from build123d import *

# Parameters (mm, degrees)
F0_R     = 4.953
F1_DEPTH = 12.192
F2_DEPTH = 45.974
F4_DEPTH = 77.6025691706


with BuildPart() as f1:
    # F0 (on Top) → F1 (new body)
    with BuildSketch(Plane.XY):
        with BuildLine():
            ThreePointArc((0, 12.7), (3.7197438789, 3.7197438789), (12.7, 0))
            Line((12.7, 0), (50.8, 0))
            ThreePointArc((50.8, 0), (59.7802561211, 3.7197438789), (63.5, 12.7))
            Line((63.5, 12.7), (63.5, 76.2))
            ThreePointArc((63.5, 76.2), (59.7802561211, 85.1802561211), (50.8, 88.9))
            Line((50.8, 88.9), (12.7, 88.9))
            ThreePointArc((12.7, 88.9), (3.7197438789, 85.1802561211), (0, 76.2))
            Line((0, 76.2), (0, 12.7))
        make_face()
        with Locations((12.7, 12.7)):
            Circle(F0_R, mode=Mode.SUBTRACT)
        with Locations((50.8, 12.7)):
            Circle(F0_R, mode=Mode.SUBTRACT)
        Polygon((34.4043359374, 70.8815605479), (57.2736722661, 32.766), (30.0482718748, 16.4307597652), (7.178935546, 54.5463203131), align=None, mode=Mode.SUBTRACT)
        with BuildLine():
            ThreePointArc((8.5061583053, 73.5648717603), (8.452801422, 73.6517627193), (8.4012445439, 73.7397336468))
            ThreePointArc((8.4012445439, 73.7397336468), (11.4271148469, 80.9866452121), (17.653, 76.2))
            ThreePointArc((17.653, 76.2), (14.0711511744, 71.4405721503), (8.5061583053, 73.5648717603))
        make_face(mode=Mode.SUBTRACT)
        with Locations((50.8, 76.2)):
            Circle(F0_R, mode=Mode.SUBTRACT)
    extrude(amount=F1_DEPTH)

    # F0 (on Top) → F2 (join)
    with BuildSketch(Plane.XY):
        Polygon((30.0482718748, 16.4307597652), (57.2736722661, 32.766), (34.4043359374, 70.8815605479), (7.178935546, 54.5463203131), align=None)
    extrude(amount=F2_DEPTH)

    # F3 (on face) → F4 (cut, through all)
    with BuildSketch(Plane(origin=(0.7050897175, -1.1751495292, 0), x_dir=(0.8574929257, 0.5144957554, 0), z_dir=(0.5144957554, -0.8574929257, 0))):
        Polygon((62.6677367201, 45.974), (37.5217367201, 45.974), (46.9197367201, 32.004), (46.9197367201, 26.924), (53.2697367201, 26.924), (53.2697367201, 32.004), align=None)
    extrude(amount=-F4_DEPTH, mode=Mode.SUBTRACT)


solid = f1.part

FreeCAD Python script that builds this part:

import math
import FreeCAD as App
import Part
import Sketcher

V = App.Vector
Q = App.Units.Quantity


def add_polygon(sketch, points):
    """Adds a closed chain of lines whose ends are joined by coincident constraints."""
    first, n = sketch.GeometryCount, len(points)
    for a, b in zip(points, points[1:] + points[:1]):
        sketch.addGeometry(Part.LineSegment(App.Vector(*a, 0), App.Vector(*b, 0)), False)
    for i in range(n):
        sketch.addConstraint(Sketcher.Constraint("Coincident", first + i, 2, first + (i + 1) % n, 1))

doc = App.newDocument("Part")
body = doc.addObject("PartDesign::Body", "Body")

# Sketch on XY plane
sketch1 = body.newObject("Sketcher::SketchObject", "Sketch")
sketch1.AttachmentSupport = (doc.getObject("XY_Plane"), [""])
sketch1.MapMode = "FlatFace"
sketch1.addGeometry(Part.ArcOfCircle(Part.Circle(V(12.7, 12.7, 0), V(0, 0, 1), 12.7), math.radians(180), math.radians(270)), False)  # 0
sketch1.addGeometry(Part.LineSegment(V(12.7, 0, 0), V(50.8, 0, 0)), False)  # 1
sketch1.addGeometry(Part.ArcOfCircle(Part.Circle(V(50.8, 12.7, 0), V(0, 0, 1), 12.7), math.radians(-90), math.radians(0)), False)  # 2
sketch1.addGeometry(Part.LineSegment(V(63.5, 12.7, 0), V(63.5, 76.2, 0)), False)  # 3
sketch1.addGeometry(Part.ArcOfCircle(Part.Circle(V(50.8, 76.2, 0), V(0, 0, 1), 12.7), math.radians(0), math.radians(90)), False)  # 4
sketch1.addGeometry(Part.LineSegment(V(50.8, 88.9, 0), V(12.7, 88.9, 0)), False)  # 5
sketch1.addGeometry(Part.ArcOfCircle(Part.Circle(V(12.7, 76.2, 0), V(0, 0, 1), 12.7), math.radians(90), math.radians(180)), False)  # 6
sketch1.addGeometry(Part.LineSegment(V(0, 76.2, 0), V(0, 12.7, 0)), False)  # 7
sketch1.addGeometry(Part.Circle(V(12.7, 12.7, 0), V(0, 0, 1), 4.95), False)  # 8
sketch1.addGeometry(Part.Circle(V(50.8, 12.7, 0), V(0, 0, 1), 4.95), False)  # 9
add_polygon(sketch1, [(7.18, 54.55), (34.4, 70.88), (57.27, 32.77), (30.05, 16.43)])  # lines 10-13
sketch1.addGeometry(Part.ArcOfCircle(Part.Circle(V(12.7, 76.2, 0), V(0, 0, 1), 4.95), math.radians(-148), math.radians(0)), False)  # 14
sketch1.addGeometry(Part.ArcOfCircle(Part.Circle(V(12.7, 76.2, 0), V(0, 0, 1), 4.95), math.radians(-150.22), math.radians(-147.86)), False)  # 15
sketch1.addGeometry(Part.ArcOfCircle(Part.Circle(V(12.7, 76.2, 0), V(0, 0, 1), 4.95), math.radians(0), math.radians(210)), False)  # 16
sketch1.addGeometry(Part.Circle(V(50.8, 76.2, 0), V(0, 0, 1), 4.95), False)  # 17
sketch1.addConstraint(Sketcher.Constraint("Tangent", 0, 2, 1, 1))
sketch1.addConstraint(Sketcher.Constraint("Tangent", 1, 2, 2, 1))
sketch1.addConstraint(Sketcher.Constraint("Tangent", 2, 2, 3, 1))
sketch1.addConstraint(Sketcher.Constraint("Tangent", 3, 2, 4, 1))
sketch1.addConstraint(Sketcher.Constraint("Tangent", 4, 2, 5, 1))
sketch1.addConstraint(Sketcher.Constraint("Tangent", 5, 2, 6, 1))
sketch1.addConstraint(Sketcher.Constraint("Tangent", 6, 2, 7, 1))
sketch1.addConstraint(Sketcher.Constraint("Tangent", 7, 2, 0, 1))
sketch1.addConstraint(Sketcher.Constraint("Tangent", 14, 1, 15, 2))
sketch1.addConstraint(Sketcher.Constraint("Tangent", 15, 1, 16, 2))
sketch1.addConstraint(Sketcher.Constraint("Tangent", 16, 1, 14, 2))
sketch1.addConstraint(Sketcher.Constraint("Horizontal", 1))
sketch1.addConstraint(Sketcher.Constraint("Vertical", 3))
sketch1.addConstraint(Sketcher.Constraint("Horizontal", 5))
sketch1.addConstraint(Sketcher.Constraint("Vertical", 7))
sketch1.addConstraint(Sketcher.Constraint("Coincident", 8, 3, 0, 3))
sketch1.addConstraint(Sketcher.Constraint("Coincident", 9, 3, 2, 3))
sketch1.addConstraint(Sketcher.Constraint("Coincident", 14, 3, 6, 3))
sketch1.addConstraint(Sketcher.Constraint("Coincident", 17, 3, 4, 3))
sketch1.addConstraint(Sketcher.Constraint("Equal", 0, 2))
sketch1.addConstraint(Sketcher.Constraint("Equal", 2, 4))
sketch1.addConstraint(Sketcher.Constraint("Equal", 4, 6))
sketch1.addConstraint(Sketcher.Constraint("Equal", 8, 9))
sketch1.addConstraint(Sketcher.Constraint("Equal", 9, 14))
sketch1.addConstraint(Sketcher.Constraint("Equal", 16, 17))
sketch1.addConstraint(Sketcher.Constraint("PointOnObject", 0, 2, -1))
sketch1.addConstraint(Sketcher.Constraint("PointOnObject", 6, 2, -2))
sketch1.addConstraint(Sketcher.Constraint("Perpendicular", 10, 11))
sketch1.addConstraint(Sketcher.Constraint("Perpendicular", 11, 12))
sketch1.addConstraint(Sketcher.Constraint("Perpendicular", 12, 13))
sketch1.addConstraint(Sketcher.Constraint("Horizontal", 6, 2, 16, 1))
sketch1.addConstraint(Sketcher.Constraint("Radius", 0, Q("0.5 in")))
sketch1.addConstraint(Sketcher.Constraint("Diameter", 8, Q("0.39 in")))
sketch1.addConstraint(Sketcher.Constraint("DistanceX", 1, 1, 1, 2, Q("1.5 in")))
sketch1.addConstraint(Sketcher.Constraint("DistanceY", 3, 1, 3, 2, Q("2.5 in")))
sketch1.addConstraint(Sketcher.Constraint("Distance", 10, Q("1.25 in")))
sketch1.addConstraint(Sketcher.Constraint("Distance", 11, Q("1.75 in")))
sketch1.addConstraint(Sketcher.Constraint("DistanceY", -1, 1, 11, 2, Q("1.29 in")))
sketch1.addConstraint(Sketcher.Constraint("DistanceY", -1, 1, 10, 2, Q("70.881561 mm")))
sketch1.addConstraint(Sketcher.Constraint("DistanceX", -1, 1, 12, 2, Q("30.048272 mm")))
sketch1.addConstraint(Sketcher.Constraint("DistanceX", -1, 1, 14, 1, Q("8.506158 mm")))
sketch1.addConstraint(Sketcher.Constraint("DistanceY", 14, 1, 15, 1, Q("0.174862 mm")))
pad1 = body.newObject("PartDesign::Pad", "Pad")
pad1.Profile = sketch1
pad1.Length = Q("0.48 in")

# Sketch on XY plane
sketch2 = body.newObject("Sketcher::SketchObject", "Sketch001")
sketch2.AttachmentSupport = (doc.getObject("XY_Plane"), [""])
sketch2.MapMode = "FlatFace"
add_polygon(sketch2, [(30, 16), (57, 33), (34, 71), (7, 55)])  # lines 0-3
sketch2.addConstraint(Sketcher.Constraint("Perpendicular", 0, 1))
sketch2.addConstraint(Sketcher.Constraint("Perpendicular", 1, 2))
sketch2.addConstraint(Sketcher.Constraint("Perpendicular", 2, 3))
sketch2.addConstraint(Sketcher.Constraint("Distance", 0, Q("1.25 in")))
sketch2.addConstraint(Sketcher.Constraint("Distance", 1, Q("1.75 in")))
sketch2.addConstraint(Sketcher.Constraint("DistanceY", -1, 1, 0, 2, Q("1.29 in")))
sketch2.addConstraint(Sketcher.Constraint("DistanceX", 2, 2, 1, 2, Q("27.2254 mm")))
sketch2.addConstraint(Sketcher.Constraint("DistanceX", -1, 1, 3, 2, Q("30.048272 mm")))
pad2 = body.newObject("PartDesign::Pad", "Pad001")
pad2.Profile = sketch2
pad2.Length = Q("1.81 in")

# Sketch on an angled plane
sketch3 = body.newObject("Sketcher::SketchObject", "Sketch002")
sketch3.Placement = App.Placement(V(0.70509, -1.17515, 0), App.Rotation(V(0.857492926, 0.514495755, 0), V(0, 0, 1), V(0.514495755, -0.857492926, 0), "ZXY"))
add_polygon(sketch3, [(63, 46), (38, 46), (47, 32), (47, 27), (53, 27), (53, 32)])  # lines 0-5
sketch3.addConstraint(Sketcher.Constraint("Horizontal", 0))
sketch3.addConstraint(Sketcher.Constraint("Vertical", 2))
sketch3.addConstraint(Sketcher.Constraint("Horizontal", 3))
sketch3.addConstraint(Sketcher.Constraint("Vertical", 4))
sketch3.addConstraint(Sketcher.Constraint("Horizontal", 1, 2, 4, 2))
sketch3.addConstraint(Sketcher.Constraint("Equal", 1, 5))
sketch3.addConstraint(Sketcher.Constraint("DistanceY", 2, 2, 2, 1, Q("0.2 in")))
sketch3.addConstraint(Sketcher.Constraint("DistanceX", 0, 2, 0, 1, Q("0.99 in")))
sketch3.addConstraint(Sketcher.Constraint("DistanceX", 3, 1, 3, 2, Q("0.25 in")))
sketch3.addConstraint(Sketcher.Constraint("DistanceY", -1, 1, 0, 2, Q("1.81 in")))
sketch3.addConstraint(Sketcher.Constraint("DistanceY", -1, 1, 1, 2, Q("1.26 in")))
sketch3.addConstraint(Sketcher.Constraint("DistanceX", -1, 1, 0, 2, Q("37.521737 mm")))
pocket1 = body.newObject("PartDesign::Pocket", "Pocket")
pocket1.Profile = sketch3
pocket1.Type = "ThroughAll"

doc.recompute()
